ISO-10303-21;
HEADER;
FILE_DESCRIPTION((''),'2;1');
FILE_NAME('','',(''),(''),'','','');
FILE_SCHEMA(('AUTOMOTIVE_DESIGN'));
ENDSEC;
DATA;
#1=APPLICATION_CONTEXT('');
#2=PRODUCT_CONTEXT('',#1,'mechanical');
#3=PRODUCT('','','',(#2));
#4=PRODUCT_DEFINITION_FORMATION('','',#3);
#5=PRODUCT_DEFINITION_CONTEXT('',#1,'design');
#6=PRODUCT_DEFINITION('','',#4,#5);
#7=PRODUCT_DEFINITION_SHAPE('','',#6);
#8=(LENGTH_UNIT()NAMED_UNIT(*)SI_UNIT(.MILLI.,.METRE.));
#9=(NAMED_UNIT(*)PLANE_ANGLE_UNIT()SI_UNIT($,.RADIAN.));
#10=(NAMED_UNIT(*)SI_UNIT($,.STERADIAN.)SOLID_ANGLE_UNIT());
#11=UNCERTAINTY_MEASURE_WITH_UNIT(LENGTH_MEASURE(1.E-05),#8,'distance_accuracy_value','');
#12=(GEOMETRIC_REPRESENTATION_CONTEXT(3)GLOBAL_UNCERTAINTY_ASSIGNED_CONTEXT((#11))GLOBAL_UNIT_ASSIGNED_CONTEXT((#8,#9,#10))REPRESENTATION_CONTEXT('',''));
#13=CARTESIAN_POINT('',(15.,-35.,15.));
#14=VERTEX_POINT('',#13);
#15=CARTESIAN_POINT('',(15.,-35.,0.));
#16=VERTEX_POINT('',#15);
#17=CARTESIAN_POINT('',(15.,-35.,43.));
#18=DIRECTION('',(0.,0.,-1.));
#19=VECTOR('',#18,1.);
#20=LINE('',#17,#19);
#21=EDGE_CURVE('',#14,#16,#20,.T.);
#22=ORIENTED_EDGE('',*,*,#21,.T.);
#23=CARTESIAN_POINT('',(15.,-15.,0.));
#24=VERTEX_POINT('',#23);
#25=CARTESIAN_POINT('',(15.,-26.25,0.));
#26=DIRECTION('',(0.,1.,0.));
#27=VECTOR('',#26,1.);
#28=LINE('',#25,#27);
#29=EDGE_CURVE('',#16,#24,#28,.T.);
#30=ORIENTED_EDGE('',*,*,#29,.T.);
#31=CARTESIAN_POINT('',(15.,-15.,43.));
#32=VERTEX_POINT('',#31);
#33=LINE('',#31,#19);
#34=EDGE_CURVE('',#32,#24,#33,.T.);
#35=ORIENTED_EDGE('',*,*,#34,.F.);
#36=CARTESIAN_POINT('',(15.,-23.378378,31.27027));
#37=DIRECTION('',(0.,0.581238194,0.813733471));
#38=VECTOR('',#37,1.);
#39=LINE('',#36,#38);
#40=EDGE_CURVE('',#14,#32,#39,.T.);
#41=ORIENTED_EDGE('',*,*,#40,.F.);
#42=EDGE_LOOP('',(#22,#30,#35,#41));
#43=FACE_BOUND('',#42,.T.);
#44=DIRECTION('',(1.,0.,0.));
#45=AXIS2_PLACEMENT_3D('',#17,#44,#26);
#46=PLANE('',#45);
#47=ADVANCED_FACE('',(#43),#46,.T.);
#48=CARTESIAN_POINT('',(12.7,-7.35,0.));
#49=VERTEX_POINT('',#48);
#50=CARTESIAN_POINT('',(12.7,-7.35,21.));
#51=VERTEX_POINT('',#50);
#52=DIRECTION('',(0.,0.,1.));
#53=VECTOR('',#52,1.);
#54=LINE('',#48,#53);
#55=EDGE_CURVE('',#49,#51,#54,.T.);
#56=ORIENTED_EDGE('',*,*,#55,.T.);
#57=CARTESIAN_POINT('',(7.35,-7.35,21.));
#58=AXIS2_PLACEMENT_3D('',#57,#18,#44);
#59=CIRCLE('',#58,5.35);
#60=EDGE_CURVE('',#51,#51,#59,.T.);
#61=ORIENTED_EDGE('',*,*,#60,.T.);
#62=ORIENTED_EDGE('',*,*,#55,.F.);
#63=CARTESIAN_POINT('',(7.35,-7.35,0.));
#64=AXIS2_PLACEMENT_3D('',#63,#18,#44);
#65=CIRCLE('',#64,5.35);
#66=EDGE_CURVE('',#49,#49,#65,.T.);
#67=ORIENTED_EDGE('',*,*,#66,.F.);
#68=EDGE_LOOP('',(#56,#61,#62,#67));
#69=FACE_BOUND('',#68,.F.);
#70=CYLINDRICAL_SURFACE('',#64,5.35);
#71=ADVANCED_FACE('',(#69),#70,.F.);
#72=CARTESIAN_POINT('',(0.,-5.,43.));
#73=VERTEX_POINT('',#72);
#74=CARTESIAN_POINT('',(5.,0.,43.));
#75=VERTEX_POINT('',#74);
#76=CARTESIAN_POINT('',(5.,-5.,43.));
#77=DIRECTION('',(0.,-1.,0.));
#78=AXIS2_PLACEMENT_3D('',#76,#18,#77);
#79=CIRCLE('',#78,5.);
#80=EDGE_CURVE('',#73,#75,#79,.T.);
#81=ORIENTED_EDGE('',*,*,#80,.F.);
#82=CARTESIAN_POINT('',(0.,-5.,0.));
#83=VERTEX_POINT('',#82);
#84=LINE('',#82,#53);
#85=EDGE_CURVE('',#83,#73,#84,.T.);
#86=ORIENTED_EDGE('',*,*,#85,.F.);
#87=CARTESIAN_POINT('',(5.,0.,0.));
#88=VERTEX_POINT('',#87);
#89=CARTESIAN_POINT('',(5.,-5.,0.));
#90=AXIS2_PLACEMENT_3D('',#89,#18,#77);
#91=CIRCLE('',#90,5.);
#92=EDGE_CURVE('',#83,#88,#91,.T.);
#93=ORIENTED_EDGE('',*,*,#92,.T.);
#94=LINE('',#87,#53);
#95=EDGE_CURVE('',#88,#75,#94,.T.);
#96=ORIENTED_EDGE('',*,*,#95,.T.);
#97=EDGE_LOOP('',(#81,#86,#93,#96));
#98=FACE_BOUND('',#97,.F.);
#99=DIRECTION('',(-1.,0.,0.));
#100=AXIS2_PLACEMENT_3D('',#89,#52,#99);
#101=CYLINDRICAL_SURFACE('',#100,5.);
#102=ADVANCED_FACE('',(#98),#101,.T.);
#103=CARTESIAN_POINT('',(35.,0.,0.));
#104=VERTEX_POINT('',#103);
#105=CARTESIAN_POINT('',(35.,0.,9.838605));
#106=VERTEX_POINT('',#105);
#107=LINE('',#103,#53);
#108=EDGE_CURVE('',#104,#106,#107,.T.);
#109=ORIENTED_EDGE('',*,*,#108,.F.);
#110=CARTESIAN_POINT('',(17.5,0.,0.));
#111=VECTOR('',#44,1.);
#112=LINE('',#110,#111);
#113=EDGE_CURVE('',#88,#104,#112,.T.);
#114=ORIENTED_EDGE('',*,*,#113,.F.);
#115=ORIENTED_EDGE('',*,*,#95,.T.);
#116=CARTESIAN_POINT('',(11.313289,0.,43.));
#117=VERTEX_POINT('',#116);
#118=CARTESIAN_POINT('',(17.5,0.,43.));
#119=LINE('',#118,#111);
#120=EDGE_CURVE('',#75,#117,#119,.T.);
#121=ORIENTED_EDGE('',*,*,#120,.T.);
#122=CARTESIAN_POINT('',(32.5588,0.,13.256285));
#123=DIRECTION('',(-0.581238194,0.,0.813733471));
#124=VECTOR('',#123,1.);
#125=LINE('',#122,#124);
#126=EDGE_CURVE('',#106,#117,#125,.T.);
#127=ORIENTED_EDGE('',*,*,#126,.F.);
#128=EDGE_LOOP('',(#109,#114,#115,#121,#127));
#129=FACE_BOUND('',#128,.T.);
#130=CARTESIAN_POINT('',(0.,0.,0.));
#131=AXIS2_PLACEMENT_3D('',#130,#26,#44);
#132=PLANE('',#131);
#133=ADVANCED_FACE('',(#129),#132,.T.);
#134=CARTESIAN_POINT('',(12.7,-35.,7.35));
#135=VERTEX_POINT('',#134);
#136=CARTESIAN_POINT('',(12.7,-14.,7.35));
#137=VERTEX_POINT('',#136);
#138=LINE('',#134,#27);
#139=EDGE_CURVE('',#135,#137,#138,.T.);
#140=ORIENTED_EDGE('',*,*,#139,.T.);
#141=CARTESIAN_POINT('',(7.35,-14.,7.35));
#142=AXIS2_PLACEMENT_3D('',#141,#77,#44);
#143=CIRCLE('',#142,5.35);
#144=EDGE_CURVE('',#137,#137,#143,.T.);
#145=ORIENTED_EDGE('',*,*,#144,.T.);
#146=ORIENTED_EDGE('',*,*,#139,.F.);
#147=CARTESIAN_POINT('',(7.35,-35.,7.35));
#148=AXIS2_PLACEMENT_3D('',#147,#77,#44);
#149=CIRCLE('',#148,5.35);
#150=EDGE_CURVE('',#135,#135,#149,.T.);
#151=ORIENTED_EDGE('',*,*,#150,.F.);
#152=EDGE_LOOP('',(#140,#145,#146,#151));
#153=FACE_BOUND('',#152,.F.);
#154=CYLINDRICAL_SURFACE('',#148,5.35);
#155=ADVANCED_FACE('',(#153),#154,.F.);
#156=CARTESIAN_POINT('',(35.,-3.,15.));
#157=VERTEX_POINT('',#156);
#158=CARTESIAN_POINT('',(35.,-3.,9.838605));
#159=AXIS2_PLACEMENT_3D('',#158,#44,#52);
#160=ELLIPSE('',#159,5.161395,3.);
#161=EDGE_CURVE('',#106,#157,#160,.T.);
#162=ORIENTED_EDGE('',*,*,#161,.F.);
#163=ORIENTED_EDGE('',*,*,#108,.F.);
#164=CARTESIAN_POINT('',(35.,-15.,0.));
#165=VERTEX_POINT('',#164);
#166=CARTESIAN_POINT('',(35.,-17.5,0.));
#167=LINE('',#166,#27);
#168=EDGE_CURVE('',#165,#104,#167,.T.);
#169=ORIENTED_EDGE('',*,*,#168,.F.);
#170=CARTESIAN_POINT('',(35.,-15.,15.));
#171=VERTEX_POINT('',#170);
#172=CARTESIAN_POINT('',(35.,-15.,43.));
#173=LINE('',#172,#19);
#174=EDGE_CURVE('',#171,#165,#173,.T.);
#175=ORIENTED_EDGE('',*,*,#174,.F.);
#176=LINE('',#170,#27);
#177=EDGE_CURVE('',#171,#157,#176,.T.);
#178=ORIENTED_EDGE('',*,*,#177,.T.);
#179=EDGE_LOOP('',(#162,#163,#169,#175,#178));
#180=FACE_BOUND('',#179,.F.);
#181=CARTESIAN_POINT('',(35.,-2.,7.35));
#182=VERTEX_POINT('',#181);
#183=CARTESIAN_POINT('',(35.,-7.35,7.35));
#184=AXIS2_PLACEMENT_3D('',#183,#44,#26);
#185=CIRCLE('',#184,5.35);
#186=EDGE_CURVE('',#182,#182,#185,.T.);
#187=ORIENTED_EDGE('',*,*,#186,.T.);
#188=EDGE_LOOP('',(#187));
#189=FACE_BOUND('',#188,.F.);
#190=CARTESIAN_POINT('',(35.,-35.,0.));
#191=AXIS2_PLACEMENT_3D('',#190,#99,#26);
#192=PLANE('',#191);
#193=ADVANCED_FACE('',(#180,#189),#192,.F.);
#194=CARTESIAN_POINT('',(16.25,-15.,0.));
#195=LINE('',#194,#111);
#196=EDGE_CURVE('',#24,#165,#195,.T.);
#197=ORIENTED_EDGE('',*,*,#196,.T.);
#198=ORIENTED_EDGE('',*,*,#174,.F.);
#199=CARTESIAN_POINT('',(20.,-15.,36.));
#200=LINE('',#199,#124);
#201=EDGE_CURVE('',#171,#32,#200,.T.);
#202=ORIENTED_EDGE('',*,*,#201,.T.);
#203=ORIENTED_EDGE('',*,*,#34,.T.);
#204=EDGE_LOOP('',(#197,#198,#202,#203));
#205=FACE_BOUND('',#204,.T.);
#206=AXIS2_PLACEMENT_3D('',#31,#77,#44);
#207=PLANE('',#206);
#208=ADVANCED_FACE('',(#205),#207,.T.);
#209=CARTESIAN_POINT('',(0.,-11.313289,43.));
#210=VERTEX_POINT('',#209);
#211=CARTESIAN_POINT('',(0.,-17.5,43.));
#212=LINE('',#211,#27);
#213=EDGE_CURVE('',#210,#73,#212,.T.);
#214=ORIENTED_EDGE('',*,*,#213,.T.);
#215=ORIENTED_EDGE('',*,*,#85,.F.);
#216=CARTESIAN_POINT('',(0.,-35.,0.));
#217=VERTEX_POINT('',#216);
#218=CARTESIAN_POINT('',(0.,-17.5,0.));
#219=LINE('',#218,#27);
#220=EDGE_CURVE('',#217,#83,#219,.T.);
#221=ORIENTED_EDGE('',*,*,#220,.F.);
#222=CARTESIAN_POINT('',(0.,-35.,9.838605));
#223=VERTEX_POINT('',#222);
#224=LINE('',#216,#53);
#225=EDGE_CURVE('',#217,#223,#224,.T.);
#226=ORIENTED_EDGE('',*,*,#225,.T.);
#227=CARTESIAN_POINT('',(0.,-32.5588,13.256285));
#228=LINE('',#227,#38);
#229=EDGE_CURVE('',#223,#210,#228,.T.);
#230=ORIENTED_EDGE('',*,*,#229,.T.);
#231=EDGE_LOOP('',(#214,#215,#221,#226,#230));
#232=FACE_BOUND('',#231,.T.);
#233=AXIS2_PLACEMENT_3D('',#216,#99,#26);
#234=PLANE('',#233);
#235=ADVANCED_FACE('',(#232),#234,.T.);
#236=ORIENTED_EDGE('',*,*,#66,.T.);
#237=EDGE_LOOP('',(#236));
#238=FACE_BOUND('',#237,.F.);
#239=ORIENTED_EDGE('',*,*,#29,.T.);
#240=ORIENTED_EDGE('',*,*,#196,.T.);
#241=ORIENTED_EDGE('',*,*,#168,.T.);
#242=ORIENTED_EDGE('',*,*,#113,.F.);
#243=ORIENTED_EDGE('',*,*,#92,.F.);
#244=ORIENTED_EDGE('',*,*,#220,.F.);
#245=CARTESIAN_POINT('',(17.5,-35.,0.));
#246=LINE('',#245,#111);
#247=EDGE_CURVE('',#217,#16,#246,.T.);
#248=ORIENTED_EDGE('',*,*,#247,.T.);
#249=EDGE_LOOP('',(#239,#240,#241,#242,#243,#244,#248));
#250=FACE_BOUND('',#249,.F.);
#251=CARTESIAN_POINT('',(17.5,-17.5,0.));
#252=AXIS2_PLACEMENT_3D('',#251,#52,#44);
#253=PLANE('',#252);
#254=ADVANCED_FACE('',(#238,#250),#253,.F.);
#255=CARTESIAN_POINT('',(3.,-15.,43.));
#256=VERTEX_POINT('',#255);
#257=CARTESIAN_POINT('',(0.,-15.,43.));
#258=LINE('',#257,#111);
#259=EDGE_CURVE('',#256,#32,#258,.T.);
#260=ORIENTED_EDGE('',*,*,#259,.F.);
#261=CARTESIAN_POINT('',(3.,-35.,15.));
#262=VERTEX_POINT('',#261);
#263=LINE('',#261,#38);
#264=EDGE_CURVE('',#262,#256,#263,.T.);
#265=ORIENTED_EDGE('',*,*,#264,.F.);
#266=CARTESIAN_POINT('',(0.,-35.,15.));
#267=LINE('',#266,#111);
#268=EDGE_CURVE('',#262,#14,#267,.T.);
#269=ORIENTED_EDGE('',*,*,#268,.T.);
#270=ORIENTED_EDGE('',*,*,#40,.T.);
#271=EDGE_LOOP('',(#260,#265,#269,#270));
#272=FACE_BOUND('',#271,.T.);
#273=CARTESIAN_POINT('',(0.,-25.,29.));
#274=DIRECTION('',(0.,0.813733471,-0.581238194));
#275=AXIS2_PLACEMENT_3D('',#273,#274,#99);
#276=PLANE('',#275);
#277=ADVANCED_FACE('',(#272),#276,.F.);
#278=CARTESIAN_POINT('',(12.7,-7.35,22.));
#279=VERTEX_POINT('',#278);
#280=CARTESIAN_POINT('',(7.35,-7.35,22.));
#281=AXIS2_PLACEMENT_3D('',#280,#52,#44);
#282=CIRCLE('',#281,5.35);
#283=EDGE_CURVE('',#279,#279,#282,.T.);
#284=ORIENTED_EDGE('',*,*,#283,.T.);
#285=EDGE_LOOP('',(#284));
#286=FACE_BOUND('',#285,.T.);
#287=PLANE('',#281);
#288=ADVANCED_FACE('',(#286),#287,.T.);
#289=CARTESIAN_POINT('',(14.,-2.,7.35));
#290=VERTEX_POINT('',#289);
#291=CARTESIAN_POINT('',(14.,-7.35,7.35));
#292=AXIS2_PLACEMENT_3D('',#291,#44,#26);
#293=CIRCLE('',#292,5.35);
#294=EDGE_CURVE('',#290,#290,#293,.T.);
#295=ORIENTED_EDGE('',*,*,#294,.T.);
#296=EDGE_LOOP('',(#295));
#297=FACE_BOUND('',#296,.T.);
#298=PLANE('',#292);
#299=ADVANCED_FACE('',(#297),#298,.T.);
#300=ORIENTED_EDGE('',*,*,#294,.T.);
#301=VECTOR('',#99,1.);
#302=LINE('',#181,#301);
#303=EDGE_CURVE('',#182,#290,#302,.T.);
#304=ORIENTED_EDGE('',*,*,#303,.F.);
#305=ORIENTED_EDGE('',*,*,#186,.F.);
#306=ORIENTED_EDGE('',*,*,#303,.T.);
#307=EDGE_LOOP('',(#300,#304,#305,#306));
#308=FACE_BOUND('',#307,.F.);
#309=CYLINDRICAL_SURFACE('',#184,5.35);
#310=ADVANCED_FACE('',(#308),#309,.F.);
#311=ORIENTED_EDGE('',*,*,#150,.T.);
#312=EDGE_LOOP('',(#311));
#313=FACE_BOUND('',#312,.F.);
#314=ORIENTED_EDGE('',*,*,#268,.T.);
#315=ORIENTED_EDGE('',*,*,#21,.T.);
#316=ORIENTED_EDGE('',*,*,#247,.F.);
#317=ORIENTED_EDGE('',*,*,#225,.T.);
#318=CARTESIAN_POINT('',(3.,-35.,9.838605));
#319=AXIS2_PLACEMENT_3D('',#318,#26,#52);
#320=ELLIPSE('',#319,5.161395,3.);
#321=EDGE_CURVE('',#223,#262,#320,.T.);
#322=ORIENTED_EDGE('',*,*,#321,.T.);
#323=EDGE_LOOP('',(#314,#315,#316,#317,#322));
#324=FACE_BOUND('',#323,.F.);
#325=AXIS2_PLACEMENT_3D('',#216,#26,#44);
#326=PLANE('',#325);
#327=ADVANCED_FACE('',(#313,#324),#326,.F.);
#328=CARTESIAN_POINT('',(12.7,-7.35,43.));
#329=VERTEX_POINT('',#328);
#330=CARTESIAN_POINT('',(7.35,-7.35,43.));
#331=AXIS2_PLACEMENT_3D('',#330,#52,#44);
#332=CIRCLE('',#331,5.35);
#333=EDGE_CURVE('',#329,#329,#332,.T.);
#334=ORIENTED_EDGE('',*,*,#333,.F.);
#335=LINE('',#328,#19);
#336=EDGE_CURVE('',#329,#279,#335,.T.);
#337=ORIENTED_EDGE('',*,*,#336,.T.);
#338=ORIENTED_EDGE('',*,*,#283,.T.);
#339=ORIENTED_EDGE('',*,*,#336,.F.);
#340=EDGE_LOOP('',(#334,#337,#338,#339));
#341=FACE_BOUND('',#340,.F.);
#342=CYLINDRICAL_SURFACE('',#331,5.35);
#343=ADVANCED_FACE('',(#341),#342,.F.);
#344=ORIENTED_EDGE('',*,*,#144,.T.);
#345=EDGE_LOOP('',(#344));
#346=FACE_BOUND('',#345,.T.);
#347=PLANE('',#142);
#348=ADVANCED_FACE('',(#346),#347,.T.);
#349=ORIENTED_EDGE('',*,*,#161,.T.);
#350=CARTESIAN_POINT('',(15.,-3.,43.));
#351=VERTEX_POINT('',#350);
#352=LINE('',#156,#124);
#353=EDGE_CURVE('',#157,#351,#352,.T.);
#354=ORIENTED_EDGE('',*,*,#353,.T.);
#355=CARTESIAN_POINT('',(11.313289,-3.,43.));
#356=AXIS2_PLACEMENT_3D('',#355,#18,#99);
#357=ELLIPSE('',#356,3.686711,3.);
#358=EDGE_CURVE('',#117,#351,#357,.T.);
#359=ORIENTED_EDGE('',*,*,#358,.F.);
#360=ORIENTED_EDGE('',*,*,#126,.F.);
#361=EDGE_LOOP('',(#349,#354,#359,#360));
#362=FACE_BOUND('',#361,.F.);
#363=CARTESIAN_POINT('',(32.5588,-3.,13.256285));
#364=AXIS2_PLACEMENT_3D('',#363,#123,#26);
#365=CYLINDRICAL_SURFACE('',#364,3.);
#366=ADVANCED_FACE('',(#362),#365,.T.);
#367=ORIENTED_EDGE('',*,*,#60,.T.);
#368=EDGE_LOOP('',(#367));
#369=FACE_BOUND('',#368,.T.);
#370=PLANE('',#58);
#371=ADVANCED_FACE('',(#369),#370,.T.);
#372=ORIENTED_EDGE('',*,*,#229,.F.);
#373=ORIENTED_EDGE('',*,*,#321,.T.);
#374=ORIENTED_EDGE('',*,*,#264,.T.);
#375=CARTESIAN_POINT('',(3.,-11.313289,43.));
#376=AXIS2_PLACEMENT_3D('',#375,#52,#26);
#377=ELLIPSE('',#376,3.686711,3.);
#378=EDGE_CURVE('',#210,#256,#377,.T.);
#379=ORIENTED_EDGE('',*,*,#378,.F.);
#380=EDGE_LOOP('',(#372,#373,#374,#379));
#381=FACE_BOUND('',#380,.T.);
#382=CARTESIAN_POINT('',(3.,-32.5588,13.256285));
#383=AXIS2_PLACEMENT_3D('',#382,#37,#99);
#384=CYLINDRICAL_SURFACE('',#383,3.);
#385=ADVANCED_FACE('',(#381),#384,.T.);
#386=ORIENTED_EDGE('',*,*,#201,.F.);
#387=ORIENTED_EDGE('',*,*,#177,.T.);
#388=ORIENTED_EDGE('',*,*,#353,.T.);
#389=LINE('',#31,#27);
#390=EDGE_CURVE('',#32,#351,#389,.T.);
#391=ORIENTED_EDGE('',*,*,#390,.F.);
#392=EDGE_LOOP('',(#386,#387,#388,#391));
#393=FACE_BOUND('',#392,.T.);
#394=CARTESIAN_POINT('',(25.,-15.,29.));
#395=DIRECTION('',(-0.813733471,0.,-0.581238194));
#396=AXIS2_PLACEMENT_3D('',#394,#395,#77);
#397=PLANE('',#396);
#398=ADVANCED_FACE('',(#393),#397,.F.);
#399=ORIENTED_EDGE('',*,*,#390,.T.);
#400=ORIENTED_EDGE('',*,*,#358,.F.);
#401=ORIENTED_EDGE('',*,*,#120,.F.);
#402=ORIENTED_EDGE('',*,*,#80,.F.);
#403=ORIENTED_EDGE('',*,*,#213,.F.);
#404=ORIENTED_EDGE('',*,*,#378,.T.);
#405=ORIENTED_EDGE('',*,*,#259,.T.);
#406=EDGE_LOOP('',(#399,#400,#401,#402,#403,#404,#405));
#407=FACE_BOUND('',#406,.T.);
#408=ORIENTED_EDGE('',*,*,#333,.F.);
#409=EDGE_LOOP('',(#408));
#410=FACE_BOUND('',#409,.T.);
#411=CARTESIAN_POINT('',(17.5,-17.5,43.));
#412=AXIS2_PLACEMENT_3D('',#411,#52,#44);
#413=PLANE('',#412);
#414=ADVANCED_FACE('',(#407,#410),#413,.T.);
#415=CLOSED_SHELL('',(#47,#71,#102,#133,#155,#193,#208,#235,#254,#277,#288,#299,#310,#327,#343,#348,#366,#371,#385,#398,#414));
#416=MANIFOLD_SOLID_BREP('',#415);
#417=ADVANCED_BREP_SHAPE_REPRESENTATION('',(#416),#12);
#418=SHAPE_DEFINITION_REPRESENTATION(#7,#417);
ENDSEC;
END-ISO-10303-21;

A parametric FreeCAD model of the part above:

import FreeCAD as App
import Part
import Sketcher
Q = App.Units.Quantity


def edges_at(feature, points):
    """Names of the edges that pass closest to the given points."""
    edges = feature.Shape.Edges
    near = lambda p: min(range(len(edges)), key=lambda i: edges[i].distToShape(Part.Vertex(*p))[0])
    return sorted({f"Edge{near(p) + 1}" for p in points})

doc = App.newDocument("Part")
body = doc.addObject("PartDesign::Body", "Body")

# Sketch on XY plane
sketch1 = body.newObject("Sketcher::SketchObject", "Sketch")
sketch1.AttachmentSupport = (doc.getObject("XY_Plane"), [""])
sketch1.MapMode = "FlatFace"
sketch1.addGeometry([
    Part.LineSegment(App.Vector(0, 0, 0), App.Vector(0, -35, 0)),
    Part.LineSegment(App.Vector(0, -35, 0), App.Vector(35, -35, 0)),
    Part.LineSegment(App.Vector(35, -35, 0), App.Vector(35, 0, 0)),
    Part.LineSegment(App.Vector(35, 0, 0), App.Vector(0, 0, 0)),
], False)
sketch1.addConstraint([
    Sketcher.Constraint("Coincident", 0, 2, 1, 1),
    Sketcher.Constraint("Coincident", 1, 2, 2, 1),
    Sketcher.Constraint("Coincident", 2, 2, 3, 1),
    Sketcher.Constraint("Coincident", 3, 2, 0, 1),
    Sketcher.Constraint("Vertical", 0),
    Sketcher.Constraint("Horizontal", 1),
    Sketcher.Constraint("Vertical", 2),
    Sketcher.Constraint("Horizontal", 3),
    Sketcher.Constraint("Coincident", 3, 2, -1, 1),
    Sketcher.Constraint("Equal", 3, 0),
    Sketcher.Constraint("DistanceX", 1, 1, 1, 2, Q("35 mm")),
])
pad1 = body.newObject("PartDesign::Pad", "Pad")
pad1.Profile = sketch1
pad1.Length = 43

# Sketch on XZ plane
sketch2 = body.newObject("Sketcher::SketchObject", "Sketch001")
sketch2.AttachmentSupport = (doc.getObject("XZ_Plane"), [""])
sketch2.MapMode = "FlatFace"
sketch2.AttachmentOffset = App.Placement(App.Vector(0, 0, 35), App.Rotation())
sketch2.addGeometry(Part.Circle(App.Vector(7, 7, 0), App.Vector(0, 0, 1), 5), False)
sketch2.addConstraint([
    Sketcher.Constraint("Diameter", 0, Q("10.7 mm")),
    Sketcher.Constraint("DistanceX", -1, 1, 0, 3, Q("7.35 mm")),
    Sketcher.Constraint("DistanceY", -1, 1, 0, 3, Q("7.35 mm")),
])
pocket1 = body.newObject("PartDesign::Pocket", "Pocket")
pocket1.Profile = sketch2
pocket1.Length = 21

# Sketch on YZ plane
sketch3 = body.newObject("Sketcher::SketchObject", "Sketch002")
sketch3.AttachmentSupport = (doc.getObject("YZ_Plane"), [""])
sketch3.MapMode = "FlatFace"
sketch3.AttachmentOffset = App.Placement(App.Vector(0, 0, 35), App.Rotation())
sketch3.addGeometry(Part.Circle(App.Vector(-7, 7, 0), App.Vector(0, 0, 1), 5), False)
sketch3.addConstraint([
    Sketcher.Constraint("Diameter", 0, Q("10.7 mm")),
    Sketcher.Constraint("DistanceX", 0, 3, -1, 1, Q("7.35 mm")),
    Sketcher.Constraint("DistanceY", -1, 1, 0, 3, Q("7.35 mm")),
])
pocket2 = body.newObject("PartDesign::Pocket", "Pocket001")
pocket2.Profile = sketch3
pocket2.Length = 21

# Sketch on XY plane
sketch4 = body.newObject("Sketcher::SketchObject", "Sketch003")
sketch4.AttachmentSupport = (doc.getObject("XY_Plane"), [""])
sketch4.MapMode = "FlatFace"
sketch4.AttachmentOffset = App.Placement(App.Vector(0, 0, 43), App.Rotation())
sketch4.addGeometry(Part.Circle(App.Vector(7, -7, 0), App.Vector(0, 0, 1), 5), False)
sketch4.addConstraint([
    Sketcher.Constraint("Diameter", 0, Q("10.7 mm")),
    Sketcher.Constraint("DistanceX", -1, 1, 0, 3, Q("7.35 mm")),
    Sketcher.Constraint("DistanceY", 0, 3, -1, 1, Q("7.35 mm")),
])
pocket3 = body.newObject("PartDesign::Pocket", "Pocket002")
pocket3.Profile = sketch4
pocket3.Length = 21

# Sketch on XY plane
sketch5 = body.newObject("Sketcher::SketchObject", "Sketch004")
sketch5.AttachmentSupport = (doc.getObject("XY_Plane"), [""])
sketch5.MapMode = "FlatFace"
sketch5.AttachmentOffset = App.Placement(App.Vector(0, 0, 43), App.Rotation())
sketch5.addGeometry([
    Part.LineSegment(App.Vector(15, -15, 0), App.Vector(15, -35, 0)),
    Part.LineSegment(App.Vector(15, -35, 0), App.Vector(35, -35, 0)),
    Part.LineSegment(App.Vector(35, -35, 0), App.Vector(35, -15, 0)),
    Part.LineSegment(App.Vector(35, -15, 0), App.Vector(15, -15, 0)),
], False)
sketch5.addConstraint([
    Sketcher.Constraint("Coincident", 0, 2, 1, 1),
    Sketcher.Constraint("Coincident", 1, 2, 2, 1),
    Sketcher.Constraint("Coincident", 2, 2, 3, 1),
    Sketcher.Constraint("Coincident", 3, 2, 0, 1),
    Sketcher.Constraint("Vertical", 0),
    Sketcher.Constraint("Horizontal", 1),
    Sketcher.Constraint("Vertical", 2),
    Sketcher.Constraint("Horizontal", 3),
    Sketcher.Constraint("Equal", 3, 0),
    Sketcher.Constraint("DistanceX", 1, 1, 1, 2, Q("20 mm")),
    Sketcher.Constraint("DistanceX", -1, 1, 0, 2, Q("15 mm")),
    Sketcher.Constraint("DistanceY", 0, 2, -1, 1, Q("35 mm")),
])
pocket4 = body.newObject("PartDesign::Pocket", "Pocket003")
pocket4.Profile = sketch5
pocket4.Type = "ThroughAll"

# Sketch on XY plane
sketch6 = body.newObject("Sketcher::SketchObject", "Sketch005")
sketch6.AttachmentSupport = (doc.getObject("XY_Plane"), [""])
sketch6.MapMode = "FlatFace"
sketch6.addGeometry(Part.Circle(App.Vector(7, -7, 0), App.Vector(0, 0, 1), 5), False)
sketch6.addConstraint([
    Sketcher.Constraint("Diameter", 0, Q("10.7 mm")),
    Sketcher.Constraint("DistanceX", -1, 1, 0, 3, Q("7.35 mm")),
    Sketcher.Constraint("DistanceY", 0, 3, -1, 1, Q("7.35 mm")),
])
pocket5 = body.newObject("PartDesign::Pocket", "Pocket004")
pocket5.Profile = sketch6
pocket5.Length = 21
pocket5.Reversed = True
doc.recompute()

chamfer = body.newObject("PartDesign::Chamfer", "Chamfer")
chamfer.Base = (pocket5, edges_at(pocket5, [(35, -7.5, 43)]))
chamfer.ChamferType = "Two distances"
chamfer.Size = 28
chamfer.Size2 = 20
chamfer.FlipDirection = True
doc.recompute()

chamfer2 = body.newObject("PartDesign::Chamfer", "Chamfer001")
chamfer2.Base = (chamfer, edges_at(chamfer, [(7.5, -35, 43)]))
chamfer2.ChamferType = "Two distances"
chamfer2.Size = 28
chamfer2.Size2 = 20
chamfer2.FlipDirection = True
doc.recompute()

fillet = body.newObject("PartDesign::Fillet", "Fillet")
fillet.Base = (chamfer2, edges_at(chamfer2, [(0, 0, 21.5)]))
fillet.Radius = 5
doc.recompute()

fillet2 = body.newObject("PartDesign::Fillet", "Fillet001")
fillet2.Base = (fillet, edges_at(fillet, [(0, -25, 29), (25, 0, 29)]))
fillet2.Radius = 3

doc.recompute()
